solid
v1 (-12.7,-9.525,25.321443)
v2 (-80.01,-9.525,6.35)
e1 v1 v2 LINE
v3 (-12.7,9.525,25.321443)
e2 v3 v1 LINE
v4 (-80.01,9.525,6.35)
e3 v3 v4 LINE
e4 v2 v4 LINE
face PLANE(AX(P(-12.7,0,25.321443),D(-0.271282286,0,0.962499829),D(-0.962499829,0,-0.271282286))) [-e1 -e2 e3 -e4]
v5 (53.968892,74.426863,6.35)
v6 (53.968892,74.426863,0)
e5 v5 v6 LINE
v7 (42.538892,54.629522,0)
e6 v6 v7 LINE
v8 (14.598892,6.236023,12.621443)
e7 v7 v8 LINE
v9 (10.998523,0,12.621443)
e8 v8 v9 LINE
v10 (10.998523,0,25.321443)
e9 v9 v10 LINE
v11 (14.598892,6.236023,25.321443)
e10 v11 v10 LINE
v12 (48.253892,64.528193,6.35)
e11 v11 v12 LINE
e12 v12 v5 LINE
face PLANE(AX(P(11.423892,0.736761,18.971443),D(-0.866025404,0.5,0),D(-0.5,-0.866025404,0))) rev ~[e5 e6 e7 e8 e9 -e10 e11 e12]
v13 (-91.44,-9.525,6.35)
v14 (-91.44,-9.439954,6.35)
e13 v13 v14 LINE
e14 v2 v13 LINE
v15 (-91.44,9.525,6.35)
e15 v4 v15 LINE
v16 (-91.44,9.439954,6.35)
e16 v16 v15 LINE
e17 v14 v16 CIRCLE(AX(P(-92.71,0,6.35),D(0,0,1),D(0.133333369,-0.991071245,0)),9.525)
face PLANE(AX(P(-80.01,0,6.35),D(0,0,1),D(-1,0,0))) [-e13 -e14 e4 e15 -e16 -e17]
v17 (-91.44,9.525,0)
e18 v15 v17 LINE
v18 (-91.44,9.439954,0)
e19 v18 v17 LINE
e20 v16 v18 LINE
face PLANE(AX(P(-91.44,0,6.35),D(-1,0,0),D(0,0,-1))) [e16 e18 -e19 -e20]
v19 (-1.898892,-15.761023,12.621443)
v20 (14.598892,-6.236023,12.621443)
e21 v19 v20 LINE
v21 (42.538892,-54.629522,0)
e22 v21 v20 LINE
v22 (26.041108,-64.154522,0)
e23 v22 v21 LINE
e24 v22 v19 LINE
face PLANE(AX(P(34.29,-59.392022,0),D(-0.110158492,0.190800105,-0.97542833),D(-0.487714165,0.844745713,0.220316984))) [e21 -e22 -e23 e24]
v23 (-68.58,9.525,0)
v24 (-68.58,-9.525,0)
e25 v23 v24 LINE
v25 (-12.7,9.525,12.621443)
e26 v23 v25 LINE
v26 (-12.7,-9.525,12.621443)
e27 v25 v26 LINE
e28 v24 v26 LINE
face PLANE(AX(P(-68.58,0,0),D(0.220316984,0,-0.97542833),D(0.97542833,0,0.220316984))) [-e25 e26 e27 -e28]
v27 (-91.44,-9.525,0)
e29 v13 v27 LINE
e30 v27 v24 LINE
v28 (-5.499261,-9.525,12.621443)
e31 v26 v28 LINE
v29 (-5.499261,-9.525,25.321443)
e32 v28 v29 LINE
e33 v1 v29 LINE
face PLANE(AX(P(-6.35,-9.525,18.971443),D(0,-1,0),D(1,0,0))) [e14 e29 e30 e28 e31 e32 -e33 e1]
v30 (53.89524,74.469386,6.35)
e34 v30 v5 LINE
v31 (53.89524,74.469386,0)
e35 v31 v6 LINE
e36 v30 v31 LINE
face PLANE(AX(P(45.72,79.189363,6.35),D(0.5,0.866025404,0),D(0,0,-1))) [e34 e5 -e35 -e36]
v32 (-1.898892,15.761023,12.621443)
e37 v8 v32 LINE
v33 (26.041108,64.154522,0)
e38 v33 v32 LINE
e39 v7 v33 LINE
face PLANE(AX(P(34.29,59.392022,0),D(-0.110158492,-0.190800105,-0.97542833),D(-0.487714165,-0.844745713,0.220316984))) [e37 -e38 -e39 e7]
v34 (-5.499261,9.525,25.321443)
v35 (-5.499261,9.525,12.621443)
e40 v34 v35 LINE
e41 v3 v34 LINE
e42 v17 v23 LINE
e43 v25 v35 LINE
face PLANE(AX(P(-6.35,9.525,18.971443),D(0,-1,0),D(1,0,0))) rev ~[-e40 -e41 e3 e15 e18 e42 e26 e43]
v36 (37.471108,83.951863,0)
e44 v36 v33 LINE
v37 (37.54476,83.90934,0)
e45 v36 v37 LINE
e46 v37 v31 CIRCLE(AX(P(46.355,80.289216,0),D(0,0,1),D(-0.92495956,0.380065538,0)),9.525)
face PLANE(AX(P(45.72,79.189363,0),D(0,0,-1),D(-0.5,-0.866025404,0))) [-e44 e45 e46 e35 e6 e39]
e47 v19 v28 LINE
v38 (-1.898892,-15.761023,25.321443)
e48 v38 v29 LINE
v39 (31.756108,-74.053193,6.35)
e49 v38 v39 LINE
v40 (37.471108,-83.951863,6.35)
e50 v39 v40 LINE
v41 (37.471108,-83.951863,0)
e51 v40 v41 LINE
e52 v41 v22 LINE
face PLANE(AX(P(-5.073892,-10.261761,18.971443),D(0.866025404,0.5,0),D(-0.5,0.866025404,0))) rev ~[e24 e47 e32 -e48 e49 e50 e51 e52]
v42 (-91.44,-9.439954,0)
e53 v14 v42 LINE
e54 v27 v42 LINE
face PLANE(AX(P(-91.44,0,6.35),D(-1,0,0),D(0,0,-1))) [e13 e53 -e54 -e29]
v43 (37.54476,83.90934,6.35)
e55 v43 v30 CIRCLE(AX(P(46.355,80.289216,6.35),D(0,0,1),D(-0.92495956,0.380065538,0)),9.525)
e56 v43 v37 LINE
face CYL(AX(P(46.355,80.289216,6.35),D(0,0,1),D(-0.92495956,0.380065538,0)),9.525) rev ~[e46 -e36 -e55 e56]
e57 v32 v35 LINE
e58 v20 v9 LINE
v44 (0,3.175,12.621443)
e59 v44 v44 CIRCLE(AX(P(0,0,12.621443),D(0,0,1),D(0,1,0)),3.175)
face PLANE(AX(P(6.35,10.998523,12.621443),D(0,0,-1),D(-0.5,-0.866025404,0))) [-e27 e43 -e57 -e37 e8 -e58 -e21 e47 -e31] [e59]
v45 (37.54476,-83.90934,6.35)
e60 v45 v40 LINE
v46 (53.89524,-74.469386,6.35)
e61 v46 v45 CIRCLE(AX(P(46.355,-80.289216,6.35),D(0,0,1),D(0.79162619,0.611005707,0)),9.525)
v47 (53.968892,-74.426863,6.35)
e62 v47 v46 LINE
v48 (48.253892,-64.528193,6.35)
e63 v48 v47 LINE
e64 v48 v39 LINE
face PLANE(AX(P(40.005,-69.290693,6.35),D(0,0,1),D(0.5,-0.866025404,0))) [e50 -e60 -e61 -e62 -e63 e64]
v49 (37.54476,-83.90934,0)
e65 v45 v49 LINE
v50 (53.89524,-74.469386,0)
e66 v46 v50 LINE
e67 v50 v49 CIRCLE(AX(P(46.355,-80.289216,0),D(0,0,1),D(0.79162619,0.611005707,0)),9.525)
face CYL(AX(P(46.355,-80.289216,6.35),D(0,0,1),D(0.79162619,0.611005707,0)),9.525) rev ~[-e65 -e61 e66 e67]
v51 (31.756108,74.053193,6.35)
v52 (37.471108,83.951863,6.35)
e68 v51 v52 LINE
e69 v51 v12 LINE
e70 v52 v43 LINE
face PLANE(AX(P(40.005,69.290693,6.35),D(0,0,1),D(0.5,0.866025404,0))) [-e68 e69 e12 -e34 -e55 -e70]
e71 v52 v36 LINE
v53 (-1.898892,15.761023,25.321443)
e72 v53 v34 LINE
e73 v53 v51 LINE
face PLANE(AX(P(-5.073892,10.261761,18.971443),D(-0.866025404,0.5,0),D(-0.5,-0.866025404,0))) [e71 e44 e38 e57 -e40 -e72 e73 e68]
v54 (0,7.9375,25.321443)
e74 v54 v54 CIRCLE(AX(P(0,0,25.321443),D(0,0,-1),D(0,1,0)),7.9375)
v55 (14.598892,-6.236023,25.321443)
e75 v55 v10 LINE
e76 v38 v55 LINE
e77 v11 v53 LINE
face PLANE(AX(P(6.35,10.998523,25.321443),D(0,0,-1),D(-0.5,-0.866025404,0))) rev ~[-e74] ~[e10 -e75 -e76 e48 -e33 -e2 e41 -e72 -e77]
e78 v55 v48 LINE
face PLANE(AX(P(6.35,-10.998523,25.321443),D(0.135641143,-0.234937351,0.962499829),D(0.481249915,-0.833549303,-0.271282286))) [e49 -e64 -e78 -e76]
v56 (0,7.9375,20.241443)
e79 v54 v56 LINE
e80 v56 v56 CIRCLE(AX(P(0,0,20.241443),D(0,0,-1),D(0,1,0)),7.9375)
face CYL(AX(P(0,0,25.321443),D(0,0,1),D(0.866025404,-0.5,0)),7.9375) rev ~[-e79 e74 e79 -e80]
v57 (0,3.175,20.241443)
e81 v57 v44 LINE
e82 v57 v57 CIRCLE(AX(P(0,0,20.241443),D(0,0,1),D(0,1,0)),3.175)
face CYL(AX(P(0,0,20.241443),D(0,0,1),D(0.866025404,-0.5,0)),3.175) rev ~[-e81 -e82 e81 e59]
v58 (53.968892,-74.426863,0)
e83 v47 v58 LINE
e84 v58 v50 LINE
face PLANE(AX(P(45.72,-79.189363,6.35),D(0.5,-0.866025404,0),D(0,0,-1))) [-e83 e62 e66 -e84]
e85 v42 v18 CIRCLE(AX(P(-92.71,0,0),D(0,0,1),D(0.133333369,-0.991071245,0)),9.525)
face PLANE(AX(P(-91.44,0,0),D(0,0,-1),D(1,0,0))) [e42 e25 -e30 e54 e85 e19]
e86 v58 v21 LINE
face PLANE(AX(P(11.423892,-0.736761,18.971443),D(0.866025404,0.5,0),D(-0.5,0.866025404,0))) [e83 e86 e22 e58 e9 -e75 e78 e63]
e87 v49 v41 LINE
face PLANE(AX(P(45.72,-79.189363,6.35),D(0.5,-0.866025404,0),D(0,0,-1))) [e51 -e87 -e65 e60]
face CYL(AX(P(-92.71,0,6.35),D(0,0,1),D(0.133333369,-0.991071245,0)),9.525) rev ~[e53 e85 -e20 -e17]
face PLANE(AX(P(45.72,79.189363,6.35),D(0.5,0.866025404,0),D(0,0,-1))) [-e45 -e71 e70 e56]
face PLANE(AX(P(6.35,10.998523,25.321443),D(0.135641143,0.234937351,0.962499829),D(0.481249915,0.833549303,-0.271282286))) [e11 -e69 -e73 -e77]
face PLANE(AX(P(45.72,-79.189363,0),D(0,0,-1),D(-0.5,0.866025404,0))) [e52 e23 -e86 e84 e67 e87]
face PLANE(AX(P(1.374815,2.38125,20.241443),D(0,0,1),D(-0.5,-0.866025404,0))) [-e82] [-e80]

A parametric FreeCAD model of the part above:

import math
import FreeCAD as App
import Part
import Sketcher

V = App.Vector
Q = App.Units.Quantity


def add_polygon(sketch, points):
    """Adds a closed chain of lines whose ends are joined by coincident constraints."""
    first, n = sketch.GeometryCount, len(points)
    for a, b in zip(points, points[1:] + points[:1]):
        sketch.addGeometry(Part.LineSegment(App.Vector(*a, 0), App.Vector(*b, 0)), False)
    for i in range(n):
        sketch.addConstraint(Sketcher.Constraint("Coincident", first + i, 2, first + (i + 1) % n, 1))

doc = App.newDocument("Part")
body = doc.addObject("PartDesign::Body", "Body")

# Sketch on XZ plane
sketch1 = doc.addObject("Sketcher::SketchObject", "Sketch")
body.addObject(sketch1)
sketch1.AttachmentSupport = (doc.XZ_Plane, [""])
sketch1.MapMode = "FlatFace"
add_polygon(sketch1, [(-91, 0), (-69, 0), (-13, 13), (-13, 25), (-80, 6), (-91, 6)])  # lines 0-5
sketch1.addConstraint([
    Sketcher.Constraint("Horizontal", 0),
    Sketcher.Constraint("Vertical", 2),
    Sketcher.Constraint("Horizontal", 4),
    Sketcher.Constraint("Vertical", 5),
    Sketcher.Constraint("PointOnObject", 0, 2, -1),
    Sketcher.Constraint("DistanceX", 0, 1, 0, 2, Q("0.9 in")),
    Sketcher.Constraint("DistanceY", 2, 1, 2, 2, Q("0.5 in")),
    Sketcher.Constraint("DistanceX", 4, 2, 4, 1, Q("0.45 in")),
    Sketcher.Constraint("DistanceY", 5, 2, 5, 1, Q("0.25 in")),
    Sketcher.Constraint("DistanceX", 0, 2, -1, 1, Q("2.7 in")),
    Sketcher.Constraint("DistanceX", 1, 2, -1, 1, Q("0.5 in")),
    Sketcher.Constraint("Distance", 3, 69.93248),
])
pad1 = doc.addObject("PartDesign::Pad", "Pad")
body.addObject(pad1)
pad1.Profile = sketch1
pad1.Length = Q("0.75 in")
pad1.Midplane = True

# Sketch on XY plane
sketch2 = doc.addObject("Sketcher::SketchObject", "Sketch001")
body.addObject(sketch2)
sketch2.AttachmentSupport = (doc.XY_Plane, [""])
sketch2.MapMode = "FlatFace"
sketch2.AttachmentOffset = App.Placement(V(0, 0, 0.25 * 25.4), App.Rotation())
sketch2.addGeometry([
    Part.LineSegment(V(-91, 9, 0), V(-91, -9, 0)),
    Part.ArcOfCircle(Part.Circle(V(-93, 0, 0), V(0, 0, 1), 10), math.radians(-82), math.radians(82)),
], False)
sketch2.addConstraint([
    Sketcher.Constraint("Coincident", 0, 1, 1, 2),
    Sketcher.Constraint("Coincident", 1, 1, 0, 2),
    Sketcher.Constraint("Vertical", 0),
    Sketcher.Constraint("PointOnObject", 1, 3, -1),
    Sketcher.Constraint("Radius", 1, Q("0.375 in")),
    Sketcher.Constraint("DistanceX", 0, 1, -1, 1, Q("3.6 in")),
    Sketcher.Constraint("DistanceX", 1, 3, -1, 1, Q("3.65 in")),
])
pocket1 = doc.addObject("PartDesign::Pocket", "Pocket")
body.addObject(pocket1)
pocket1.Profile = sketch2
pocket1.Type = "ThroughAll"

# Sketch on XZ plane
sketch3 = doc.addObject("Sketcher::SketchObject", "Sketch002")
body.addObject(sketch3)
sketch3.AttachmentSupport = (doc.XZ_Plane, [""])
sketch3.MapMode = "FlatFace"
add_polygon(sketch3, [(-13, 25), (-13, 13), (0, 13), (0, 25)])  # lines 0-3
sketch3.addConstraint([
    Sketcher.Constraint("Vertical", 0),
    Sketcher.Constraint("Horizontal", 1),
    Sketcher.Constraint("Vertical", 2),
    Sketcher.Constraint("Horizontal", 3),
    Sketcher.Constraint("PointOnObject", 1, 2, -2),
    Sketcher.Constraint("Equal", 3, 0),
    Sketcher.Constraint("DistanceX", 1, 1, 1, 2, Q("0.5 in")),
    Sketcher.Constraint("DistanceY", -1, 1, 0, 2, 12.621443),
])
pad2 = doc.addObject("PartDesign::Pad", "Pad001")
body.addObject(pad2)
pad2.Profile = sketch3
pad2.Length = Q("0.75 in")
pad2.Midplane = True

# Sketch on XY plane
sketch4 = doc.addObject("Sketcher::SketchObject", "Sketch003")
body.addObject(sketch4)
sketch4.AttachmentSupport = (doc.XY_Plane, [""])
sketch4.MapMode = "FlatFace"
sketch4.AttachmentOffset = App.Placement(V(0, 0, 25.321443), App.Rotation())
sketch4.addGeometry([
    Part.LineSegment(V(0, -8, 0), V(0, 8, 0)),
    Part.ArcOfCircle(Part.Circle(V(0, 0, 0), V(0, 0, 1), 8), math.radians(90), math.radians(270)),
], False)
sketch4.addConstraint([
    Sketcher.Constraint("Coincident", 0, 1, 1, 2),
    Sketcher.Constraint("Coincident", 1, 1, 0, 2),
    Sketcher.Constraint("Vertical", 0),
    Sketcher.Constraint("Coincident", 1, 3, -1, 1),
    Sketcher.Constraint("PointOnObject", 0, 1, -2),
    Sketcher.Constraint("Radius", 1, Q("0.3125 in")),
])
pocket2 = doc.addObject("PartDesign::Pocket", "Pocket001")
body.addObject(pocket2)
pocket2.Profile = sketch4
pocket2.Length = Q("0.2 in")

# Sketch on XY plane
sketch5 = doc.addObject("Sketcher::SketchObject", "Sketch004")
body.addObject(sketch5)
sketch5.AttachmentSupport = (doc.XY_Plane, [""])
sketch5.MapMode = "FlatFace"
sketch5.AttachmentOffset = App.Placement(V(0, 0, 20.241443), App.Rotation())
sketch5.addGeometry([
    Part.LineSegment(V(0, -3.2, 0), V(0, 3.2, 0)),
    Part.ArcOfCircle(Part.Circle(V(0, 0, 0), V(0, 0, 1), 3.2), math.radians(90), math.radians(270)),
], False)
sketch5.addConstraint([
    Sketcher.Constraint("Coincident", 0, 1, 1, 2),
    Sketcher.Constraint("Coincident", 1, 1, 0, 2),
    Sketcher.Constraint("Vertical", 0),
    Sketcher.Constraint("Coincident", 1, 3, -1, 1),
    Sketcher.Constraint("PointOnObject", 0, 1, -2),
    Sketcher.Constraint("Radius", 1, Q("0.125 in")),
])
pocket3 = doc.addObject("PartDesign::Pocket", "Pocket002")
body.addObject(pocket3)
pocket3.Profile = sketch5
pocket3.Length = Q("1 in")
body2 = doc.addObject("PartDesign::Body", "Body001")
doc.recompute()

body2.BaseFeature = body
doc.recompute()

body3 = doc.addObject("PartDesign::Body", "Body002")
body3.BaseFeature = body
body3.Placement = App.Placement(V(0, 0, 0), App.Rotation(V(0, 0, 1), 120))
boolean = doc.addObject("PartDesign::Boolean", "Boolean")
body2.addObject(boolean)
boolean.Type = "Fuse"
boolean.addObjects([body3])
doc.recompute()

body.Placement = App.Placement(V(0, 0, 0), App.Rotation(V(0, 0, 1), 240))
boolean2 = doc.addObject("PartDesign::Boolean", "Boolean001")
body2.addObject(boolean2)
boolean2.Type = "Fuse"
boolean2.addObjects([body])

doc.recompute()
